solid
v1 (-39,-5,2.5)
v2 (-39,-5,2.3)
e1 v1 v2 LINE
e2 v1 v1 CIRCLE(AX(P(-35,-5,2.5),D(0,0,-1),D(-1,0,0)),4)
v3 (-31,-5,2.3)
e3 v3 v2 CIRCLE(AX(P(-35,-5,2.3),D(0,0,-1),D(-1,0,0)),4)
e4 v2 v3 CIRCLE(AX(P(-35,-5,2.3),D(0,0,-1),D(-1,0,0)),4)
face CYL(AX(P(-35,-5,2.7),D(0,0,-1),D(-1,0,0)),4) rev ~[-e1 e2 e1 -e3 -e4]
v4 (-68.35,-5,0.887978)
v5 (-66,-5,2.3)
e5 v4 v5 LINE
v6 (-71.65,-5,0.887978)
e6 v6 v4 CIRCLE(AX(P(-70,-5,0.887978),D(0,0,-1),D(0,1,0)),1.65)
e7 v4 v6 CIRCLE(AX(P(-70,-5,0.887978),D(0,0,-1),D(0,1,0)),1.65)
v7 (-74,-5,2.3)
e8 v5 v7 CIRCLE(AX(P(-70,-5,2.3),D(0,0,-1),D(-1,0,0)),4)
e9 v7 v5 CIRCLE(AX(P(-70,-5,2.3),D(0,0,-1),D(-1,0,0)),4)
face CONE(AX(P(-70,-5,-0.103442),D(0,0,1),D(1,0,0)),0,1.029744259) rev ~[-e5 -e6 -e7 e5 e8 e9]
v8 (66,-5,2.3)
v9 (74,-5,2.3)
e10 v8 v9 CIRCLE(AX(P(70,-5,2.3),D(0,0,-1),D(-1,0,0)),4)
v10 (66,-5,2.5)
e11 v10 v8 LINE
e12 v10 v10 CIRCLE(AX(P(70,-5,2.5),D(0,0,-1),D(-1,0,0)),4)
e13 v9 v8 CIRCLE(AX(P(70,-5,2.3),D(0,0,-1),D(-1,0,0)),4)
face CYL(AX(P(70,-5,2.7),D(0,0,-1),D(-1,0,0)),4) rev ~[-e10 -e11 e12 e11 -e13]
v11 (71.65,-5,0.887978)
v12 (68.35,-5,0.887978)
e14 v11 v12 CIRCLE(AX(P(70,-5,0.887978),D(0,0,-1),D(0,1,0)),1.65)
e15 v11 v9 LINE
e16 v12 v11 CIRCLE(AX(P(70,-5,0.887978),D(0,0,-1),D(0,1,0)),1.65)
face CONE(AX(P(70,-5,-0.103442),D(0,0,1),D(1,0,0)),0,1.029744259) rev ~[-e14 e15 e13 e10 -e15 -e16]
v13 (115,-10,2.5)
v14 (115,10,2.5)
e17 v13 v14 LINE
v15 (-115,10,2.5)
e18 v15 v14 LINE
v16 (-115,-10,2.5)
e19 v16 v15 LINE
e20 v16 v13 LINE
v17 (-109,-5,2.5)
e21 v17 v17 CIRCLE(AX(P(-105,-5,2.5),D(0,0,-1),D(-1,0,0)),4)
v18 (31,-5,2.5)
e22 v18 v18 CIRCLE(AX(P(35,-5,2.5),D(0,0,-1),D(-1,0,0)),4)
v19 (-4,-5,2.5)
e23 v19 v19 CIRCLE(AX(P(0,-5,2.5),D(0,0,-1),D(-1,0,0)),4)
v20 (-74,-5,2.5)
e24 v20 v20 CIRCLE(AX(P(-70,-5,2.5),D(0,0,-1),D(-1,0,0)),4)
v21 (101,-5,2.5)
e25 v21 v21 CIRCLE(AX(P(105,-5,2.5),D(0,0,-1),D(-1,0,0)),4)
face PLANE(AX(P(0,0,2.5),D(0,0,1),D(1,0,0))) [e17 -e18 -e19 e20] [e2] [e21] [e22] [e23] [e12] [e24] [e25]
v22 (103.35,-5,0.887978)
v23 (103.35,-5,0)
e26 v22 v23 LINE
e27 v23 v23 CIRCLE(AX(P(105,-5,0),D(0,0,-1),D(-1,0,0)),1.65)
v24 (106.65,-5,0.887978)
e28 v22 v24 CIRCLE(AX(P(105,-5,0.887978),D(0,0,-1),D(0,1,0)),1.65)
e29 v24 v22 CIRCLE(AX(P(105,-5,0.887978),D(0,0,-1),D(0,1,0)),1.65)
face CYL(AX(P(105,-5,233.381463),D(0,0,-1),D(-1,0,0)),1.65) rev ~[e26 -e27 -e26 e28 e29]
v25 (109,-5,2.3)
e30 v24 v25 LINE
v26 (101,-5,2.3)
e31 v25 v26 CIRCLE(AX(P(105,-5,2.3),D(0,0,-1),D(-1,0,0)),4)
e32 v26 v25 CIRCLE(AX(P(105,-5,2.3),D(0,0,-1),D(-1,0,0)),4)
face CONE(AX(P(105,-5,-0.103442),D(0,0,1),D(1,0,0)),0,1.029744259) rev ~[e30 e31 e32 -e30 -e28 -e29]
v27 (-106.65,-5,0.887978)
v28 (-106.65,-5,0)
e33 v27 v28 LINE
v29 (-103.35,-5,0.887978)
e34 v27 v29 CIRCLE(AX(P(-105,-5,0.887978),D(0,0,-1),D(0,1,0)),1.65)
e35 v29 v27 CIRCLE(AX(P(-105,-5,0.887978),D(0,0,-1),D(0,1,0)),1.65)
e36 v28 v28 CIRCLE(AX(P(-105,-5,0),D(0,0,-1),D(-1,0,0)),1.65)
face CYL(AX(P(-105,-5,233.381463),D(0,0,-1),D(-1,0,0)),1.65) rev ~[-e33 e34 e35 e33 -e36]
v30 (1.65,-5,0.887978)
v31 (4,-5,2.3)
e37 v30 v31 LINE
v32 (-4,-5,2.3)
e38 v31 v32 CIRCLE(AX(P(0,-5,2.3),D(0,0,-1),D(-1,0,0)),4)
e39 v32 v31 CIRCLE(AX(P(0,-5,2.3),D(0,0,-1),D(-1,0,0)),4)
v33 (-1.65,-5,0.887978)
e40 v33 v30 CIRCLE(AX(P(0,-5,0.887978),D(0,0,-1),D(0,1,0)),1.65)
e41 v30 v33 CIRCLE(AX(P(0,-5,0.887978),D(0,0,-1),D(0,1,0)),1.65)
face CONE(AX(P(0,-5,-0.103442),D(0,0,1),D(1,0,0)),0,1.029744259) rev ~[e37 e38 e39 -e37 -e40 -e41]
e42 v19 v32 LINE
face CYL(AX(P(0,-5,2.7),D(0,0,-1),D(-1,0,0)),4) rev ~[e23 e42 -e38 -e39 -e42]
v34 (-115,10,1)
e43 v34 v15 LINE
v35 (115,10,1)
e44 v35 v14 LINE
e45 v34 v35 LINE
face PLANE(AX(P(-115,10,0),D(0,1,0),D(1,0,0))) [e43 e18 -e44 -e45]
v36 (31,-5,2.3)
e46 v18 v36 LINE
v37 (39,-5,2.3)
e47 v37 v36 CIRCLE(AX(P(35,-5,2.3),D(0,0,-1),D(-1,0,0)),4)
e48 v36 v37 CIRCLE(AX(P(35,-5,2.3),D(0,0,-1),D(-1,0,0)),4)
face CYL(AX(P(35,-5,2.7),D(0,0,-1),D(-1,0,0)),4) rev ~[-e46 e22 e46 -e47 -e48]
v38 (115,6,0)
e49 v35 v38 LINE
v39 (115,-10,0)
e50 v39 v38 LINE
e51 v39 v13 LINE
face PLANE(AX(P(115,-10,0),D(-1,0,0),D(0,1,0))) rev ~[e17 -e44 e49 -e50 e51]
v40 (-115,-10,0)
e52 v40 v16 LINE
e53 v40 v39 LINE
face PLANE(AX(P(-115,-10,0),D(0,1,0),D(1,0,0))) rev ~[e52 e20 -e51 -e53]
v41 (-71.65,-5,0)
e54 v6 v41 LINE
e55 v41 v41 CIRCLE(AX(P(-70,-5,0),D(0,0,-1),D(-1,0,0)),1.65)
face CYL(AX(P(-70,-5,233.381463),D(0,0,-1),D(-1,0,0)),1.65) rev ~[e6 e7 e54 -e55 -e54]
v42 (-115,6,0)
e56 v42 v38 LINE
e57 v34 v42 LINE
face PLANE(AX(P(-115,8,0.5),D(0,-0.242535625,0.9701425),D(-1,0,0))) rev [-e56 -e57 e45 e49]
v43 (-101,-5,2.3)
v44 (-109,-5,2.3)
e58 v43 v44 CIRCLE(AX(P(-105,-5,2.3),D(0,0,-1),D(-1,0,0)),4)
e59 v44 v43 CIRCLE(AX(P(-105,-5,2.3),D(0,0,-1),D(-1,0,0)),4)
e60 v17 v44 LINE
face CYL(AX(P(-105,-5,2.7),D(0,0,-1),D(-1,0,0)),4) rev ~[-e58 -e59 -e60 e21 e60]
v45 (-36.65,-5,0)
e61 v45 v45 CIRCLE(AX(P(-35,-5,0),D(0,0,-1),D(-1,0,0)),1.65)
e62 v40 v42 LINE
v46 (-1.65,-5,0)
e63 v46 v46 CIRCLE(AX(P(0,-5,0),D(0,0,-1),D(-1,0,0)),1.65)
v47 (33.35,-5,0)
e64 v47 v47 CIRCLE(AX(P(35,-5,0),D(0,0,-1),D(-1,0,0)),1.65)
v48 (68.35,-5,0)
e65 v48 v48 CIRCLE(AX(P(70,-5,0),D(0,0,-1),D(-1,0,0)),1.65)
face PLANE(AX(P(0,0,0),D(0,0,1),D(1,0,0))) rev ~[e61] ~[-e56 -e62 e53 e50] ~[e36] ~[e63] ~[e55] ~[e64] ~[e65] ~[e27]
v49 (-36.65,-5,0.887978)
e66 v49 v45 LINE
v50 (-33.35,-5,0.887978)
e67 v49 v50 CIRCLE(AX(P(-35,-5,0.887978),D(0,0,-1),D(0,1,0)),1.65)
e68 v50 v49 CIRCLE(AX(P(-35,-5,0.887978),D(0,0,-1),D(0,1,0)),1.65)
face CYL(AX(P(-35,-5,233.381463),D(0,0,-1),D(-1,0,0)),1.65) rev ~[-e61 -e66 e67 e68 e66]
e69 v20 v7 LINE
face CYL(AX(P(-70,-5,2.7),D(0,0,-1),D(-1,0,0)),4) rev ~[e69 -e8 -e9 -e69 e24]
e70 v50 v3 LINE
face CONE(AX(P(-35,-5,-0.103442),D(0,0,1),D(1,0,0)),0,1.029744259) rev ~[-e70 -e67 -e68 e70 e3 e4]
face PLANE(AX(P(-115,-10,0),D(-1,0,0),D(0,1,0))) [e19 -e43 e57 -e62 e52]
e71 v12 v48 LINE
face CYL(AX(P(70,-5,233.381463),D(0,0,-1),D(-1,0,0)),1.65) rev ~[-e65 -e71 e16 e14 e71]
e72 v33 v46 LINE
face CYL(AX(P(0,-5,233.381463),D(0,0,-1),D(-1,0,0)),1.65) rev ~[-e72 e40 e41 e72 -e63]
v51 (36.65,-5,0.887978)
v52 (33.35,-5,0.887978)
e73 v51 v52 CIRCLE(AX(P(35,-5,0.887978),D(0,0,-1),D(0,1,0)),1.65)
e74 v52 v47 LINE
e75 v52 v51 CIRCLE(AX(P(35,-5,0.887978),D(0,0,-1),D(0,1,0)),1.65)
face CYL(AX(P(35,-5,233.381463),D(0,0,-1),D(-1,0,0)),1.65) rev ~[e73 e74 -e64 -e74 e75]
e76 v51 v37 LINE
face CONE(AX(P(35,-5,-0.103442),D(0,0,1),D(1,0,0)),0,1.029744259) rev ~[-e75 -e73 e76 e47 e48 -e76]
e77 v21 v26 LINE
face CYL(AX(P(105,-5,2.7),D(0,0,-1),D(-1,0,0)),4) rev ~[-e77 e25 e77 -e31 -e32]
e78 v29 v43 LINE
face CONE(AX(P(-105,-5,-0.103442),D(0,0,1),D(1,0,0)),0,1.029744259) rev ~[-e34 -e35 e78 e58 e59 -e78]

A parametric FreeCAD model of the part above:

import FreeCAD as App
import Part
import Sketcher

V = App.Vector


def edges_at(feature, points):
    """Names of the edges that pass closest to the given points."""
    edges = feature.Shape.Edges
    near = lambda p: min(range(len(edges)), key=lambda i: edges[i].distToShape(Part.Vertex(*p))[0])
    return sorted({f"Edge{near(p) + 1}" for p in points})


def add_polygon(sketch, points):
    """Adds a closed chain of lines whose ends are joined by coincident constraints."""
    first, n = sketch.GeometryCount, len(points)
    for a, b in zip(points, points[1:] + points[:1]):
        sketch.addGeometry(Part.LineSegment(App.Vector(*a, 0), App.Vector(*b, 0)), False)
    for i in range(n):
        sketch.addConstraint(Sketcher.Constraint("Coincident", first + i, 2, first + (i + 1) % n, 1))

doc = App.newDocument("Part")
body = doc.addObject("PartDesign::Body", "Body")

sketch1 = body.newObject("Sketcher::SketchObject", "Sketch")
sketch1.AttachmentSupport = (doc.getObject("XY_Plane"), [""])
sketch1.MapMode = "FlatFace"
add_polygon(sketch1, [(-115, 10), (-115, -10), (115, -10), (115, 10)])
sketch1.addConstraint(Sketcher.Constraint("Vertical", 0))
sketch1.addConstraint(Sketcher.Constraint("Horizontal", 1))
sketch1.addConstraint(Sketcher.Constraint("Vertical", 2))
sketch1.addConstraint(Sketcher.Constraint("Horizontal", 3))
sketch1.addConstraint(Sketcher.Constraint("Symmetric", 0, 2, 2, 2, -1, 1))
sketch1.addConstraint(Sketcher.Constraint("DistanceX", 1, 1, 1, 2, 230.0))
sketch1.addConstraint(Sketcher.Constraint("DistanceY", 0, 2, 0, 1, 20.0))
pad1 = body.newObject("PartDesign::Pad", "Pad")
pad1.Profile = sketch1
pad1.Length = 2.5

sketch2 = body.newObject("Sketcher::SketchObject", "Sketch001")
sketch2.AttachmentSupport = (doc.getObject("XY_Plane"), [""])
sketch2.MapMode = "FlatFace"
sketch2.AttachmentOffset = App.Placement(V(0, 0, 2.5), App.Rotation())
sketch2.addGeometry(Part.Circle(V(-105, -5, 0), V(0, 0, 1), 1.6), False)
sketch2.addGeometry(Part.Circle(V(-70, -5, 0), V(0, 0, 1), 1.6), False)
sketch2.addGeometry(Part.Circle(V(-35, -5, 0), V(0, 0, 1), 1.6), False)
sketch2.addGeometry(Part.Circle(V(0, -5, 0), V(0, 0, 1), 1.6), False)
sketch2.addGeometry(Part.Circle(V(35, -5, 0), V(0, 0, 1), 1.6), False)
sketch2.addGeometry(Part.Circle(V(105, -5, 0), V(0, 0, 1), 1.6), False)
sketch2.addGeometry(Part.Circle(V(70, -5, 0), V(0, 0, 1), 1.6), False)
sketch2.addConstraint(Sketcher.Constraint("Equal", 0, 1))
sketch2.addConstraint(Sketcher.Constraint("Equal", 1, 2))
sketch2.addConstraint(Sketcher.Constraint("Equal", 2, 3))
sketch2.addConstraint(Sketcher.Constraint("Equal", 3, 4))
sketch2.addConstraint(Sketcher.Constraint("Equal", 4, 5))
sketch2.addConstraint(Sketcher.Constraint("Equal", 5, 6))
sketch2.addConstraint(Sketcher.Constraint("Symmetric", 2, 3, 4, 3, -2))
sketch2.addConstraint(Sketcher.Constraint("Symmetric", 0, 3, 5, 3, -2))
sketch2.addConstraint(Sketcher.Constraint("Symmetric", 1, 3, 6, 3, -2))
sketch2.addConstraint(Sketcher.Constraint("PointOnObject", 3, 3, -2))
sketch2.addConstraint(Sketcher.Constraint("Horizontal", 0, 3, 1, 3))
sketch2.addConstraint(Sketcher.Constraint("Horizontal", 1, 3, 2, 3))
sketch2.addConstraint(Sketcher.Constraint("Horizontal", 2, 3, 3, 3))
sketch2.addConstraint(Sketcher.Constraint("Diameter", 0, 3.3))
sketch2.addConstraint(Sketcher.Constraint("DistanceX", 0, 3, -1, 1, 105.0))
sketch2.addConstraint(Sketcher.Constraint("DistanceY", 0, 3, -1, 1, 5.0))
sketch2.addConstraint(Sketcher.Constraint("DistanceX", 1, 3, -1, 1, 70.0))
sketch2.addConstraint(Sketcher.Constraint("DistanceX", 2, 3, -1, 1, 35.0))
doc.recompute()
hole = body.newObject("PartDesign::Hole", "Hole")
hole.Profile = sketch2
hole.ThreadType = "None"
hole.Diameter = 3.3
hole.DepthType = "ThroughAll"
doc.recompute()

chamfer = body.newObject("PartDesign::Chamfer", "Chamfer")
chamfer.Base = (hole, edges_at(hole, [(0, 10, 0)]))
chamfer.ChamferType = "Two distances"
chamfer.Size = 1
chamfer.Size2 = 4

sketch3 = body.newObject("Sketcher::SketchObject", "Sketch002")
sketch3.AttachmentSupport = (doc.getObject("XY_Plane"), [""])
sketch3.MapMode = "FlatFace"
sketch3.AttachmentOffset = App.Placement(V(0, 0, 2.5), App.Rotation())
sketch3.addGeometry(Part.Circle(V(-105, -5, 0), V(0, 0, 1), 4), False)
sketch3.addGeometry(Part.Circle(V(-70, -5, 0), V(0, 0, 1), 4), False)
sketch3.addGeometry(Part.Circle(V(-35, -5, 0), V(0, 0, 1), 4), False)
sketch3.addGeometry(Part.Circle(V(0, -5, 0), V(0, 0, 1), 4), False)
sketch3.addGeometry(Part.Circle(V(105, -5, 0), V(0, 0, 1), 4), False)
sketch3.addGeometry(Part.Circle(V(70, -5, 0), V(0, 0, 1), 4), False)
sketch3.addGeometry(Part.Circle(V(35, -5, 0), V(0, 0, 1), 4), False)
sketch3.addConstraint(Sketcher.Constraint("Equal", 0, 1))
sketch3.addConstraint(Sketcher.Constraint("Equal", 1, 2))
sketch3.addConstraint(Sketcher.Constraint("Equal", 2, 3))
sketch3.addConstraint(Sketcher.Constraint("Equal", 3, 4))
sketch3.addConstraint(Sketcher.Constraint("Equal", 4, 5))
sketch3.addConstraint(Sketcher.Constraint("Equal", 5, 6))
sketch3.addConstraint(Sketcher.Constraint("Symmetric", 0, 3, 4, 3, -2))
sketch3.addConstraint(Sketcher.Constraint("Symmetric", 1, 3, 5, 3, -2))
sketch3.addConstraint(Sketcher.Constraint("Symmetric", 2, 3, 6, 3, -2))
sketch3.addConstraint(Sketcher.Constraint("PointOnObject", 3, 3, -2))
sketch3.addConstraint(Sketcher.Constraint("Horizontal", 0, 3, 1, 3))
sketch3.addConstraint(Sketcher.Constraint("Horizontal", 1, 3, 2, 3))
sketch3.addConstraint(Sketcher.Constraint("Horizontal", 2, 3, 3, 3))
sketch3.addConstraint(Sketcher.Constraint("Diameter", 0, 8.0))
sketch3.addConstraint(Sketcher.Constraint("DistanceX", 0, 3, -1, 1, 105.0))
sketch3.addConstraint(Sketcher.Constraint("DistanceY", 0, 3, -1, 1, 5.0))
sketch3.addConstraint(Sketcher.Constraint("DistanceX", 1, 3, -1, 1, 70.0))
sketch3.addConstraint(Sketcher.Constraint("DistanceX", 2, 3, -1, 1, 35.0))
doc.recompute()
hole2 = body.newObject("PartDesign::Hole", "Hole001")
hole2.Profile = sketch3
hole2.ThreadType = "None"
hole2.Diameter = 8
hole2.DepthType = "Dimension"
hole2.Depth = 0.2
hole2.DrillPoint = "Angled"
hole2.DrillPointAngle = 118

doc.recompute()
